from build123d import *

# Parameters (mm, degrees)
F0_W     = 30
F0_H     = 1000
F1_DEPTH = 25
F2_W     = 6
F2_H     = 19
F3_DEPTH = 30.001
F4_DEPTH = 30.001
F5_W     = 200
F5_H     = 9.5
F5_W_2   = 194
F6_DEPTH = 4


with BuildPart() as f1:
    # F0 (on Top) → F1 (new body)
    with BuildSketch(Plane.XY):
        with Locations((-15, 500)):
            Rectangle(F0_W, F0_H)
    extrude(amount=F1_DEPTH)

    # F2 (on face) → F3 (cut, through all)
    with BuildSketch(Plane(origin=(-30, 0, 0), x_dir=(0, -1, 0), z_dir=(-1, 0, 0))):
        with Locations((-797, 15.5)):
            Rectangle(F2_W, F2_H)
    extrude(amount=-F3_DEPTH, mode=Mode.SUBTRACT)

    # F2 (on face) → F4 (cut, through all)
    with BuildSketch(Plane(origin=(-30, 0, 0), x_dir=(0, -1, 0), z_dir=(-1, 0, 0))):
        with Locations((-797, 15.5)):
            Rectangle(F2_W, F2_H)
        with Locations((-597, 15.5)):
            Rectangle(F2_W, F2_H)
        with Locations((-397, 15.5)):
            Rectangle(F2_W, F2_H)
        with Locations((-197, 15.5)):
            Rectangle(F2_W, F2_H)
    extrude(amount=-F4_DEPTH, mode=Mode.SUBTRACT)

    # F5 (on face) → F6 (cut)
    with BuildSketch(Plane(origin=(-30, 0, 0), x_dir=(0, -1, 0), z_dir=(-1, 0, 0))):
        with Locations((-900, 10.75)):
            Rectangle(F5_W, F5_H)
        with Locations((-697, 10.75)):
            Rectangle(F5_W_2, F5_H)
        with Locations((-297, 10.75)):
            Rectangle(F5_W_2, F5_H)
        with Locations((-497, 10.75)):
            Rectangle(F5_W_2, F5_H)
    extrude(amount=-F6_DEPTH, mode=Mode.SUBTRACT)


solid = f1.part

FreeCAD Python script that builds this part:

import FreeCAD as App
import Part
import Sketcher

doc = App.newDocument("Part")
body = doc.addObject("PartDesign::Body", "Body")

# Sketch on XY plane
sketch1 = doc.addObject("Sketcher::SketchObject", "Sketch")
body.addObject(sketch1)
sketch1.AttachmentSupport = (doc.XY_Plane, [""])
sketch1.MapMode = "FlatFace"
sketch1.addGeometry([
    Part.LineSegment(App.Vector(-30, 1000, 0), App.Vector(-30, 0, 0)),
    Part.LineSegment(App.Vector(-30, 0, 0), App.Vector(0, 0, 0)),
    Part.LineSegment(App.Vector(0, 0, 0), App.Vector(0, 1000, 0)),
    Part.LineSegment(App.Vector(0, 1000, 0), App.Vector(-30, 1000, 0)),
], False)
sketch1.addConstraint([
    Sketcher.Constraint("Coincident", 0, 2, 1, 1),
    Sketcher.Constraint("Coincident", 1, 2, 2, 1),
    Sketcher.Constraint("Coincident", 2, 2, 3, 1),
    Sketcher.Constraint("Coincident", 3, 2, 0, 1),
    Sketcher.Constraint("Vertical", 0),
    Sketcher.Constraint("Horizontal", 1),
    Sketcher.Constraint("Vertical", 2),
    Sketcher.Constraint("Horizontal", 3),
    Sketcher.Constraint("Coincident", 1, 2, -1, 1),
    Sketcher.Constraint("DistanceX", 1, 1, 1, 2, 30.0),
    Sketcher.Constraint("DistanceY", 0, 2, 0, 1, 1000.0),
])
pad1 = doc.addObject("PartDesign::Pad", "Pad")
body.addObject(pad1)
pad1.Profile = sketch1
pad1.Length = 25

# Sketch on YZ plane
sketch2 = doc.addObject("Sketcher::SketchObject", "Sketch001")
body.addObject(sketch2)
sketch2.AttachmentSupport = (doc.YZ_Plane, [""])
sketch2.MapMode = "FlatFace"
sketch2.AttachmentOffset = App.Placement(App.Vector(0, 0, -30), App.Rotation())
sketch2.addGeometry([
    Part.LineSegment(App.Vector(800, 25, 0), App.Vector(800, 6, 0)),
    Part.LineSegment(App.Vector(800, 6, 0), App.Vector(794, 6, 0)),
    Part.LineSegment(App.Vector(794, 6, 0), App.Vector(794, 25, 0)),
    Part.LineSegment(App.Vector(794, 25, 0), App.Vector(800, 25, 0)),
], False)
sketch2.addConstraint([
    Sketcher.Constraint("Coincident", 0, 2, 1, 1),
    Sketcher.Constraint("Coincident", 1, 2, 2, 1),
    Sketcher.Constraint("Coincident", 2, 2, 3, 1),
    Sketcher.Constraint("Coincident", 3, 2, 0, 1),
    Sketcher.Constraint("Vertical", 0),
    Sketcher.Constraint("Horizontal", 1),
    Sketcher.Constraint("Vertical", 2),
    Sketcher.Constraint("Horizontal", 3),
    Sketcher.Constraint("DistanceX", 1, 2, 1, 1, 6.0),
    Sketcher.Constraint("DistanceY", 0, 2, 0, 1, 19.0),
    Sketcher.Constraint("DistanceX", -1, 1, 0, 2, 800.0),
    Sketcher.Constraint("DistanceY", -1, 1, 0, 2, 6.0),
])
pocket1 = doc.addObject("PartDesign::Pocket", "Pocket")
body.addObject(pocket1)
pocket1.Profile = sketch2
pocket1.Type = "ThroughAll"
pocket1.Reversed = True

# Sketch on YZ plane
sketch3 = doc.addObject("Sketcher::SketchObject", "Sketch002")
body.addObject(sketch3)
sketch3.AttachmentSupport = (doc.YZ_Plane, [""])
sketch3.MapMode = "FlatFace"
sketch3.AttachmentOffset = App.Placement(App.Vector(0, 0, -30), App.Rotation())
sketch3.addGeometry([
    Part.LineSegment(App.Vector(800, 25, 0), App.Vector(800, 6, 0)),  # 0
    Part.LineSegment(App.Vector(800, 6, 0), App.Vector(794, 6, 0)),  # 1
    Part.LineSegment(App.Vector(794, 6, 0), App.Vector(794, 25, 0)),  # 2
    Part.LineSegment(App.Vector(794, 25, 0), App.Vector(800, 25, 0)),  # 3
    Part.LineSegment(App.Vector(600, 25, 0), App.Vector(600, 6, 0)),  # 4
    Part.LineSegment(App.Vector(600, 6, 0), App.Vector(594, 6, 0)),  # 5
    Part.LineSegment(App.Vector(594, 6, 0), App.Vector(594, 25, 0)),  # 6
    Part.LineSegment(App.Vector(594, 25, 0), App.Vector(600, 25, 0)),  # 7
    Part.LineSegment(App.Vector(400, 25, 0), App.Vector(400, 6, 0)),  # 8
    Part.LineSegment(App.Vector(400, 6, 0), App.Vector(394, 6, 0)),  # 9
    Part.LineSegment(App.Vector(394, 6, 0), App.Vector(394, 25, 0)),  # 10
    Part.LineSegment(App.Vector(394, 25, 0), App.Vector(400, 25, 0)),  # 11
    Part.LineSegment(App.Vector(200, 25, 0), App.Vector(200, 6, 0)),  # 12
    Part.LineSegment(App.Vector(200, 6, 0), App.Vector(194, 6, 0)),  # 13
    Part.LineSegment(App.Vector(194, 6, 0), App.Vector(194, 25, 0)),  # 14
    Part.LineSegment(App.Vector(194, 25, 0), App.Vector(200, 25, 0)),  # 15
], False)
sketch3.addConstraint([
    Sketcher.Constraint("Coincident", 0, 2, 1, 1),
    Sketcher.Constraint("Coincident", 1, 2, 2, 1),
    Sketcher.Constraint("Coincident", 2, 2, 3, 1),
    Sketcher.Constraint("Coincident", 3, 2, 0, 1),
    Sketcher.Constraint("Coincident", 4, 2, 5, 1),
    Sketcher.Constraint("Coincident", 5, 2, 6, 1),
    Sketcher.Constraint("Coincident", 6, 2, 7, 1),
    Sketcher.Constraint("Coincident", 7, 2, 4, 1),
    Sketcher.Constraint("Coincident", 8, 2, 9, 1),
    Sketcher.Constraint("Coincident", 9, 2, 10, 1),
    Sketcher.Constraint("Coincident", 10, 2, 11, 1),
    Sketcher.Constraint("Coincident", 11, 2, 8, 1),
    Sketcher.Constraint("Coincident", 12, 2, 13, 1),
    Sketcher.Constraint("Coincident", 13, 2, 14, 1),
    Sketcher.Constraint("Coincident", 14, 2, 15, 1),
    Sketcher.Constraint("Coincident", 15, 2, 12, 1),
    Sketcher.Constraint("Vertical", 0),
    Sketcher.Constraint("Horizontal", 1),
    Sketcher.Constraint("Vertical", 2),
    Sketcher.Constraint("Horizontal", 3),
    Sketcher.Constraint("Vertical", 4),
    Sketcher.Constraint("Horizontal", 5),
    Sketcher.Constraint("Vertical", 6),
    Sketcher.Constraint("Horizontal", 7),
    Sketcher.Constraint("Vertical", 8),
    Sketcher.Constraint("Horizontal", 9),
    Sketcher.Constraint("Vertical", 10),
    Sketcher.Constraint("Horizontal", 11),
    Sketcher.Constraint("Vertical", 12),
    Sketcher.Constraint("Horizontal", 13),
    Sketcher.Constraint("Vertical", 14),
    Sketcher.Constraint("Horizontal", 15),
    Sketcher.Constraint("Horizontal", 1, 2, 4, 2),
    Sketcher.Constraint("Horizontal", 3, 2, 6, 2),
    Sketcher.Constraint("Horizontal", 5, 2, 8, 2),
    Sketcher.Constraint("Horizontal", 7, 2, 10, 2),
    Sketcher.Constraint("Horizontal", 9, 2, 12, 2),
    Sketcher.Constraint("Horizontal", 11, 2, 14, 2),
    Sketcher.Constraint("Equal", 3, 5),
    Sketcher.Constraint("Equal", 7, 9),
    Sketcher.Constraint("Equal", 11, 13),
    Sketcher.Constraint("DistanceX", 1, 2, 1, 1, 6.0),
    Sketcher.Constraint("DistanceY", 0, 2, 0, 1, 19.0),
    Sketcher.Constraint("DistanceX", -1, 1, 0, 2, 800.0),
    Sketcher.Constraint("DistanceY", -1, 1, 0, 2, 6.0),
    Sketcher.Constraint("DistanceX", -1, 1, 4, 2, 600.0),
    Sketcher.Constraint("DistanceX", -1, 1, 8, 2, 400.0),
    Sketcher.Constraint("DistanceX", -1, 1, 12, 2, 200.0),
])
pocket2 = doc.addObject("PartDesign::Pocket", "Pocket001")
body.addObject(pocket2)
pocket2.Profile = sketch3
pocket2.Type = "ThroughAll"
pocket2.Reversed = True

# Sketch on YZ plane
sketch4 = doc.addObject("Sketcher::SketchObject", "Sketch003")
body.addObject(sketch4)
sketch4.AttachmentSupport = (doc.YZ_Plane, [""])
sketch4.MapMode = "FlatFace"
sketch4.AttachmentOffset = App.Placement(App.Vector(0, 0, -30), App.Rotation())
sketch4.addGeometry([
    Part.LineSegment(App.Vector(1000, 15.5, 0), App.Vector(1000, 6, 0)),  # 0
    Part.LineSegment(App.Vector(1000, 6, 0), App.Vector(800, 6, 0)),  # 1
    Part.LineSegment(App.Vector(800, 6, 0), App.Vector(800, 15.5, 0)),  # 2
    Part.LineSegment(App.Vector(800, 15.5, 0), App.Vector(1000, 15.5, 0)),  # 3
    Part.LineSegment(App.Vector(794, 15.5, 0), App.Vector(794, 6, 0)),  # 4
    Part.LineSegment(App.Vector(794, 6, 0), App.Vector(600, 6, 0)),  # 5
    Part.LineSegment(App.Vector(600, 6, 0), App.Vector(600, 15.5, 0)),  # 6
    Part.LineSegment(App.Vector(600, 15.5, 0), App.Vector(794, 15.5, 0)),  # 7
    Part.LineSegment(App.Vector(394, 15.5, 0), App.Vector(394, 6, 0)),  # 8
    Part.LineSegment(App.Vector(394, 6, 0), App.Vector(200, 6, 0)),  # 9
    Part.LineSegment(App.Vector(200, 6, 0), App.Vector(200, 15.5, 0)),  # 10
    Part.LineSegment(App.Vector(200, 15.5, 0), App.Vector(394, 15.5, 0)),  # 11
    Part.LineSegment(App.Vector(594, 15.5, 0), App.Vector(594, 6, 0)),  # 12
    Part.LineSegment(App.Vector(594, 6, 0), App.Vector(400, 6, 0)),  # 13
    Part.LineSegment(App.Vector(400, 6, 0), App.Vector(400, 15.5, 0)),  # 14
    Part.LineSegment(App.Vector(400, 15.5, 0), App.Vector(594, 15.5, 0)),  # 15
], False)
sketch4.addConstraint([
    Sketcher.Constraint("Coincident", 0, 2, 1, 1),
    Sketcher.Constraint("Coincident", 1, 2, 2, 1),
    Sketcher.Constraint("Coincident", 2, 2, 3, 1),
    Sketcher.Constraint("Coincident", 3, 2, 0, 1),
    Sketcher.Constraint("Coincident", 4, 2, 5, 1),
    Sketcher.Constraint("Coincident", 5, 2, 6, 1),
    Sketcher.Constraint("Coincident", 6, 2, 7, 1),
    Sketcher.Constraint("Coincident", 7, 2, 4, 1),
    Sketcher.Constraint("Coincident", 8, 2, 9, 1),
    Sketcher.Constraint("Coincident", 9, 2, 10, 1),
    Sketcher.Constraint("Coincident", 10, 2, 11, 1),
    Sketcher.Constraint("Coincident", 11, 2, 8, 1),
    Sketcher.Constraint("Coincident", 12, 2, 13, 1),
    Sketcher.Constraint("Coincident", 13, 2, 14, 1),
    Sketcher.Constraint("Coincident", 14, 2, 15, 1),
    Sketcher.Constraint("Coincident", 15, 2, 12, 1),
    Sketcher.Constraint("Vertical", 0),
    Sketcher.Constraint("Horizontal", 1),
    Sketcher.Constraint("Vertical", 2),
    Sketcher.Constraint("Horizontal", 3),
    Sketcher.Constraint("Vertical", 4),
    Sketcher.Constraint("Horizontal", 5),
    Sketcher.Constraint("Vertical", 6),
    Sketcher.Constraint("Horizontal", 7),
    Sketcher.Constraint("Vertical", 8),
    Sketcher.Constraint("Horizontal", 9),
    Sketcher.Constraint("Vertical", 10),
    Sketcher.Constraint("Horizontal", 11),
    Sketcher.Constraint("Vertical", 12),
    Sketcher.Constraint("Horizontal", 13),
    Sketcher.Constraint("Vertical", 14),
    Sketcher.Constraint("Horizontal", 15),
    Sketcher.Constraint("Horizontal", 1, 2, 4, 2),
    Sketcher.Constraint("Horizontal", 3, 2, 6, 2),
    Sketcher.Constraint("Horizontal", 5, 2, 8, 2),
    Sketcher.Constraint("Horizontal", 7, 2, 10, 2),
    Sketcher.Constraint("Horizontal", 9, 2, 12, 2),
    Sketcher.Constraint("Horizontal", 11, 2, 14, 2),
    Sketcher.Constraint("Equal", 7, 9),
    Sketcher.Constraint("Equal", 11, 13),
    Sketcher.Constraint("DistanceX", 1, 2, 1, 1, 200.0),
    Sketcher.Constraint("DistanceX", 5, 2, 5, 1, 194.0),
    Sketcher.Constraint("DistanceY", 0, 2, 0, 1, 9.5),
    Sketcher.Constraint("DistanceX", -1, 1, 0, 2, 1000.0),
    Sketcher.Constraint("DistanceY", -1, 1, 0, 2, 6.0),
    Sketcher.Constraint("DistanceX", -1, 1, 4, 2, 794.0),
    Sketcher.Constraint("DistanceX", -1, 1, 8, 2, 394.0),
    Sketcher.Constraint("DistanceX", -1, 1, 12, 2, 594.0),
])
pocket3 = doc.addObject("PartDesign::Pocket", "Pocket002")
body.addObject(pocket3)
pocket3.Profile = sketch4
pocket3.Length = 4
pocket3.Reversed = True

doc.recompute()
